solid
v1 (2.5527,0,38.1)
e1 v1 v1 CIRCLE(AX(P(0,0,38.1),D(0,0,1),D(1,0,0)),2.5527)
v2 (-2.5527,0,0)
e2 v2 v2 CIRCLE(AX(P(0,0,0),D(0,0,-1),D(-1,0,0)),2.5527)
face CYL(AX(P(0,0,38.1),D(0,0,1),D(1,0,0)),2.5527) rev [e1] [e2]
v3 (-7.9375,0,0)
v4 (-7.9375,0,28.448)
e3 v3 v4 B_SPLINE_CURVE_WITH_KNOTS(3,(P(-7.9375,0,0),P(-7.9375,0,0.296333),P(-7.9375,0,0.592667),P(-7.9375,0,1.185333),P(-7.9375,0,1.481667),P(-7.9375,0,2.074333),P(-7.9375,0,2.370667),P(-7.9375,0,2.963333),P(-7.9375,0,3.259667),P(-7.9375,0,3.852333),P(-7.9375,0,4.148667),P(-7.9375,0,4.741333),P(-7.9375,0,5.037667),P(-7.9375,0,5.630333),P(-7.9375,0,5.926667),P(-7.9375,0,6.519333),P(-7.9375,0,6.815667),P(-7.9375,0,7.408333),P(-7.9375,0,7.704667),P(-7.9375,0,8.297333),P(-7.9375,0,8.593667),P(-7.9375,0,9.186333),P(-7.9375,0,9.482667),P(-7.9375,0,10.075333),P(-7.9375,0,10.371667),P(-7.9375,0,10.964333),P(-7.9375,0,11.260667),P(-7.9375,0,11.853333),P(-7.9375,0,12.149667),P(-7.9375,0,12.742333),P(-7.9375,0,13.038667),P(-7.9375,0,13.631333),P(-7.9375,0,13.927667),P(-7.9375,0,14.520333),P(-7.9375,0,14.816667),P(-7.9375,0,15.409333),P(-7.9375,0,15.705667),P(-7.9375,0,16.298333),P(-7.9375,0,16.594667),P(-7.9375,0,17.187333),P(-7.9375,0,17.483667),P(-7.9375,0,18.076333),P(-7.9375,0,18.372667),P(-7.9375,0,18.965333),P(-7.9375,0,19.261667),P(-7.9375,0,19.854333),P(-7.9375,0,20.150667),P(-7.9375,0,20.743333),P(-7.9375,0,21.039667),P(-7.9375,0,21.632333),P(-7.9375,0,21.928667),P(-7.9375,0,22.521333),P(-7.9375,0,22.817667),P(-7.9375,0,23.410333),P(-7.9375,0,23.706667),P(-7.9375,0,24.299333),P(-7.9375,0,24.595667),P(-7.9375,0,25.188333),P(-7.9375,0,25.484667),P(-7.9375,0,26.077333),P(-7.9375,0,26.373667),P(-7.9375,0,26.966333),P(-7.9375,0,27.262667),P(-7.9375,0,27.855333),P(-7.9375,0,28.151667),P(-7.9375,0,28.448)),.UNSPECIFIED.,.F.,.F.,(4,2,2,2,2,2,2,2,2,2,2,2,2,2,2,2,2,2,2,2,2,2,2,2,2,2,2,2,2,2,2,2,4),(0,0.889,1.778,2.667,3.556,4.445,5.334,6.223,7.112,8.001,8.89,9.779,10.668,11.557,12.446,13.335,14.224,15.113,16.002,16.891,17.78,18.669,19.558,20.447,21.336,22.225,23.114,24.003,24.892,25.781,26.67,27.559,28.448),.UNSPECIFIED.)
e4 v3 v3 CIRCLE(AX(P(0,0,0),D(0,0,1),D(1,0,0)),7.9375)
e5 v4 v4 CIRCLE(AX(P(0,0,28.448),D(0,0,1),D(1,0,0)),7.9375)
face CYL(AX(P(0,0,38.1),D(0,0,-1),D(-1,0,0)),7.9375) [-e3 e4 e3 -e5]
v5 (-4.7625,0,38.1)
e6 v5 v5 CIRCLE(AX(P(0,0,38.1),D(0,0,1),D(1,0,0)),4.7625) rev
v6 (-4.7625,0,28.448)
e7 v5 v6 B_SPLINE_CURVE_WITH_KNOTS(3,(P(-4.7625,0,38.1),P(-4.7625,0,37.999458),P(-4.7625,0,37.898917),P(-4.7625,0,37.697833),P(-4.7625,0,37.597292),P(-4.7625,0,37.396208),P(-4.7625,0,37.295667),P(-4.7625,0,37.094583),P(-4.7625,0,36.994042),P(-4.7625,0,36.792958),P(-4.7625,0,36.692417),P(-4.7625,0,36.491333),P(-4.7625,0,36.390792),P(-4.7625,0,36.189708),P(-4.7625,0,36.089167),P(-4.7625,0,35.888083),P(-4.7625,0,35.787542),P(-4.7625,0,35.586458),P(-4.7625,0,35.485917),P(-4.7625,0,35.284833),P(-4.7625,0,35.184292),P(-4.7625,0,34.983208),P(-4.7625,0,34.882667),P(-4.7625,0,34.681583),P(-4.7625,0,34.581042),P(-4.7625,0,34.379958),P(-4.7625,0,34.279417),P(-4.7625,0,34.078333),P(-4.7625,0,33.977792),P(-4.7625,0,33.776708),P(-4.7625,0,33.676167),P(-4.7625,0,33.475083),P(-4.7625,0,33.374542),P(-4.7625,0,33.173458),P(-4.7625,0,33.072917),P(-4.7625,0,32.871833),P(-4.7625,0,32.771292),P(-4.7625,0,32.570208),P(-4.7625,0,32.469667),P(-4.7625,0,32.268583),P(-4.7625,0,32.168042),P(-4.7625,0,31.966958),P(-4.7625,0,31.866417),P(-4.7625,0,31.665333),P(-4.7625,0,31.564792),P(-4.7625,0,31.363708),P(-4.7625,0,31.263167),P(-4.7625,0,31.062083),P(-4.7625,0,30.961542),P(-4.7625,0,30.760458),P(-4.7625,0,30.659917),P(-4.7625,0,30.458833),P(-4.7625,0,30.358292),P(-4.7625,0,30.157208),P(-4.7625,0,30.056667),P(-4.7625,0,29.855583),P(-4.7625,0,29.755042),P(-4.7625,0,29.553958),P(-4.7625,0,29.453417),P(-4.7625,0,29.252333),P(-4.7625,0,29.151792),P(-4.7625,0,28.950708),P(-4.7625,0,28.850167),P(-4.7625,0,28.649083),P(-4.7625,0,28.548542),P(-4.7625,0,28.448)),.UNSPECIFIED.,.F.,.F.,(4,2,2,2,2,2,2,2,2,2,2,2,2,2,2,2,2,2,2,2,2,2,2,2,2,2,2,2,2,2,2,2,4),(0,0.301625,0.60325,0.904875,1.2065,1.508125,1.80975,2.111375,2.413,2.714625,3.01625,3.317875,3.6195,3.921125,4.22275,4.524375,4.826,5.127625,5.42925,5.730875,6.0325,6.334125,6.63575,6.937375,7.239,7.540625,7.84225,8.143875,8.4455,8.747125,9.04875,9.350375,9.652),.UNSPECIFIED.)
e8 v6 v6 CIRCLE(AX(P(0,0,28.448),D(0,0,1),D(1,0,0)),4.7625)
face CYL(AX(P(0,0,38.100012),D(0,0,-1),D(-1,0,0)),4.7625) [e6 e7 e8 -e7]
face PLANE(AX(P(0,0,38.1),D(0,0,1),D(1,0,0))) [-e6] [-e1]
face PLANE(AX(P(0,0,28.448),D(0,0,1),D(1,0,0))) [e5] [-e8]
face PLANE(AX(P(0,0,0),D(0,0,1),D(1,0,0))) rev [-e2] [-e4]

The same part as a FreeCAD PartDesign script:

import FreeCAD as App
import Part
import Sketcher
from FreeCAD import Vector
Q = App.Units.Quantity

doc = App.newDocument("Part")
body = doc.addObject("PartDesign::Body", "Body")

sketch1 = body.newObject("Sketcher::SketchObject", "Sketch")
sketch1.AttachmentSupport = (doc.getObject("XY_Plane"), [""])
sketch1.MapMode = "FlatFace"
sketch1.addGeometry(Part.Circle(Vector(0, 0, 0), Vector(0, 0, 1), 8), False)
sketch1.addConstraint([
    Sketcher.Constraint("Coincident", 0, 3, -1, 1),
    Sketcher.Constraint("Diameter", 0, Q("0.625 in")),
])
pad1 = body.newObject("PartDesign::Pad", "Pad")
pad1.Profile = sketch1
pad1.Length = Q("1.5 in")

sketch2 = body.newObject("Sketcher::SketchObject", "Sketch001")
sketch2.AttachmentSupport = (doc.getObject("XY_Plane"), [""])
sketch2.MapMode = "FlatFace"
sketch2.AttachmentOffset = App.Placement(Vector(0, 0, 1.5 * 25.4), App.Rotation())
sketch2.addGeometry([
    Part.LineSegment(Vector(-13.4, 13.4, 0), Vector(-13.4, -13.4, 0)),
    Part.LineSegment(Vector(-13.4, -13.4, 0), Vector(13.4, -13.4, 0)),
    Part.LineSegment(Vector(13.4, -13.4, 0), Vector(13.4, 13.4, 0)),
    Part.LineSegment(Vector(13.4, 13.4, 0), Vector(-13.4, 13.4, 0)),
    Part.Circle(Vector(0, 0, 0), Vector(0, 0, 1), 4.8),
], False)
sketch2.addConstraint([
    Sketcher.Constraint("Coincident", 0, 2, 1, 1),
    Sketcher.Constraint("Coincident", 1, 2, 2, 1),
    Sketcher.Constraint("Coincident", 2, 2, 3, 1),
    Sketcher.Constraint("Coincident", 3, 2, 0, 1),
    Sketcher.Constraint("Vertical", 0),
    Sketcher.Constraint("Horizontal", 1),
    Sketcher.Constraint("Vertical", 2),
    Sketcher.Constraint("Horizontal", 3),
    Sketcher.Constraint("Coincident", 4, 3, -1, 1),
    Sketcher.Constraint("Symmetric", 0, 2, 2, 2, -1, 1),
    Sketcher.Constraint("Equal", 3, 0),
    Sketcher.Constraint("Diameter", 4, Q("0.375 in")),
    Sketcher.Constraint("DistanceX", 1, 1, 1, 2, Q("26.72 mm")),
])
pocket1 = body.newObject("PartDesign::Pocket", "Pocket")
pocket1.Profile = sketch2
pocket1.Type = "TwoLengths"
pocket1.Length = 40.719237
pocket1.Length2 = Q("0.38 in")
pocket1.Reversed = True

sketch3 = body.newObject("Sketcher::SketchObject", "Sketch002")
sketch3.AttachmentSupport = (doc.getObject("XY_Plane"), [""])
sketch3.MapMode = "FlatFace"
sketch3.AttachmentOffset = App.Placement(Vector(0, 0, 1.5 * 25.4), App.Rotation())
sketch3.addGeometry(Part.Circle(Vector(0, 0, 0), Vector(0, 0, 1), 2.6), False)
sketch3.addConstraint([
    Sketcher.Constraint("Coincident", 0, 3, -1, 1),
    Sketcher.Constraint("Diameter", 0, Q("0.201 in")),
])
doc.recompute()
hole = body.newObject("PartDesign::Hole", "Hole")
hole.Profile = sketch3
hole.ThreadType = "None"
hole.Diameter = Q("0.201 in")
hole.DepthType = "Dimension"
hole.Depth = 17.516183
hole.DrillPoint = "Angled"
hole.DrillPointAngle = 118

sketch4 = body.newObject("Sketcher::SketchObject", "Sketch003")
sketch4.AttachmentSupport = (doc.getObject("XY_Plane"), [""])
sketch4.MapMode = "FlatFace"
sketch4.addGeometry(Part.Circle(Vector(0, 0, 0), Vector(0, 0, 1), 2.6), False)
sketch4.addConstraint([
    Sketcher.Constraint("Coincident", 0, 3, -1, 1),
    Sketcher.Constraint("Diameter", 0, Q("0.201 in")),
])
doc.recompute()
hole2 = body.newObject("PartDesign::Hole", "Hole001")
hole2.Profile = sketch4
hole2.ThreadType = "None"
hole2.Diameter = Q("0.201 in")
hole2.DepthType = "Dimension"
hole2.Depth = 12.436183
hole2.DrillPoint = "Angled"
hole2.DrillPointAngle = 118
hole2.Reversed = True

sketch5 = body.newObject("Sketcher::SketchObject", "Sketch004")
sketch5.AttachmentSupport = (doc.getObject("XY_Plane"), [""])
sketch5.MapMode = "FlatFace"
sketch5.AttachmentOffset = App.Placement(Vector(0, 0, 1.5 * 25.4), App.Rotation())
sketch5.addGeometry(Part.Circle(Vector(0, 0, 0), Vector(0, 0, 1), 2.6), False)
sketch5.addConstraint([
    Sketcher.Constraint("Coincident", 0, 3, -1, 1),
    Sketcher.Constraint("Diameter", 0, Q("0.201 in")),
])
pocket2 = body.newObject("PartDesign::Pocket", "Pocket001")
pocket2.Profile = sketch5
pocket2.Type = "ThroughAll"

doc.recompute()
